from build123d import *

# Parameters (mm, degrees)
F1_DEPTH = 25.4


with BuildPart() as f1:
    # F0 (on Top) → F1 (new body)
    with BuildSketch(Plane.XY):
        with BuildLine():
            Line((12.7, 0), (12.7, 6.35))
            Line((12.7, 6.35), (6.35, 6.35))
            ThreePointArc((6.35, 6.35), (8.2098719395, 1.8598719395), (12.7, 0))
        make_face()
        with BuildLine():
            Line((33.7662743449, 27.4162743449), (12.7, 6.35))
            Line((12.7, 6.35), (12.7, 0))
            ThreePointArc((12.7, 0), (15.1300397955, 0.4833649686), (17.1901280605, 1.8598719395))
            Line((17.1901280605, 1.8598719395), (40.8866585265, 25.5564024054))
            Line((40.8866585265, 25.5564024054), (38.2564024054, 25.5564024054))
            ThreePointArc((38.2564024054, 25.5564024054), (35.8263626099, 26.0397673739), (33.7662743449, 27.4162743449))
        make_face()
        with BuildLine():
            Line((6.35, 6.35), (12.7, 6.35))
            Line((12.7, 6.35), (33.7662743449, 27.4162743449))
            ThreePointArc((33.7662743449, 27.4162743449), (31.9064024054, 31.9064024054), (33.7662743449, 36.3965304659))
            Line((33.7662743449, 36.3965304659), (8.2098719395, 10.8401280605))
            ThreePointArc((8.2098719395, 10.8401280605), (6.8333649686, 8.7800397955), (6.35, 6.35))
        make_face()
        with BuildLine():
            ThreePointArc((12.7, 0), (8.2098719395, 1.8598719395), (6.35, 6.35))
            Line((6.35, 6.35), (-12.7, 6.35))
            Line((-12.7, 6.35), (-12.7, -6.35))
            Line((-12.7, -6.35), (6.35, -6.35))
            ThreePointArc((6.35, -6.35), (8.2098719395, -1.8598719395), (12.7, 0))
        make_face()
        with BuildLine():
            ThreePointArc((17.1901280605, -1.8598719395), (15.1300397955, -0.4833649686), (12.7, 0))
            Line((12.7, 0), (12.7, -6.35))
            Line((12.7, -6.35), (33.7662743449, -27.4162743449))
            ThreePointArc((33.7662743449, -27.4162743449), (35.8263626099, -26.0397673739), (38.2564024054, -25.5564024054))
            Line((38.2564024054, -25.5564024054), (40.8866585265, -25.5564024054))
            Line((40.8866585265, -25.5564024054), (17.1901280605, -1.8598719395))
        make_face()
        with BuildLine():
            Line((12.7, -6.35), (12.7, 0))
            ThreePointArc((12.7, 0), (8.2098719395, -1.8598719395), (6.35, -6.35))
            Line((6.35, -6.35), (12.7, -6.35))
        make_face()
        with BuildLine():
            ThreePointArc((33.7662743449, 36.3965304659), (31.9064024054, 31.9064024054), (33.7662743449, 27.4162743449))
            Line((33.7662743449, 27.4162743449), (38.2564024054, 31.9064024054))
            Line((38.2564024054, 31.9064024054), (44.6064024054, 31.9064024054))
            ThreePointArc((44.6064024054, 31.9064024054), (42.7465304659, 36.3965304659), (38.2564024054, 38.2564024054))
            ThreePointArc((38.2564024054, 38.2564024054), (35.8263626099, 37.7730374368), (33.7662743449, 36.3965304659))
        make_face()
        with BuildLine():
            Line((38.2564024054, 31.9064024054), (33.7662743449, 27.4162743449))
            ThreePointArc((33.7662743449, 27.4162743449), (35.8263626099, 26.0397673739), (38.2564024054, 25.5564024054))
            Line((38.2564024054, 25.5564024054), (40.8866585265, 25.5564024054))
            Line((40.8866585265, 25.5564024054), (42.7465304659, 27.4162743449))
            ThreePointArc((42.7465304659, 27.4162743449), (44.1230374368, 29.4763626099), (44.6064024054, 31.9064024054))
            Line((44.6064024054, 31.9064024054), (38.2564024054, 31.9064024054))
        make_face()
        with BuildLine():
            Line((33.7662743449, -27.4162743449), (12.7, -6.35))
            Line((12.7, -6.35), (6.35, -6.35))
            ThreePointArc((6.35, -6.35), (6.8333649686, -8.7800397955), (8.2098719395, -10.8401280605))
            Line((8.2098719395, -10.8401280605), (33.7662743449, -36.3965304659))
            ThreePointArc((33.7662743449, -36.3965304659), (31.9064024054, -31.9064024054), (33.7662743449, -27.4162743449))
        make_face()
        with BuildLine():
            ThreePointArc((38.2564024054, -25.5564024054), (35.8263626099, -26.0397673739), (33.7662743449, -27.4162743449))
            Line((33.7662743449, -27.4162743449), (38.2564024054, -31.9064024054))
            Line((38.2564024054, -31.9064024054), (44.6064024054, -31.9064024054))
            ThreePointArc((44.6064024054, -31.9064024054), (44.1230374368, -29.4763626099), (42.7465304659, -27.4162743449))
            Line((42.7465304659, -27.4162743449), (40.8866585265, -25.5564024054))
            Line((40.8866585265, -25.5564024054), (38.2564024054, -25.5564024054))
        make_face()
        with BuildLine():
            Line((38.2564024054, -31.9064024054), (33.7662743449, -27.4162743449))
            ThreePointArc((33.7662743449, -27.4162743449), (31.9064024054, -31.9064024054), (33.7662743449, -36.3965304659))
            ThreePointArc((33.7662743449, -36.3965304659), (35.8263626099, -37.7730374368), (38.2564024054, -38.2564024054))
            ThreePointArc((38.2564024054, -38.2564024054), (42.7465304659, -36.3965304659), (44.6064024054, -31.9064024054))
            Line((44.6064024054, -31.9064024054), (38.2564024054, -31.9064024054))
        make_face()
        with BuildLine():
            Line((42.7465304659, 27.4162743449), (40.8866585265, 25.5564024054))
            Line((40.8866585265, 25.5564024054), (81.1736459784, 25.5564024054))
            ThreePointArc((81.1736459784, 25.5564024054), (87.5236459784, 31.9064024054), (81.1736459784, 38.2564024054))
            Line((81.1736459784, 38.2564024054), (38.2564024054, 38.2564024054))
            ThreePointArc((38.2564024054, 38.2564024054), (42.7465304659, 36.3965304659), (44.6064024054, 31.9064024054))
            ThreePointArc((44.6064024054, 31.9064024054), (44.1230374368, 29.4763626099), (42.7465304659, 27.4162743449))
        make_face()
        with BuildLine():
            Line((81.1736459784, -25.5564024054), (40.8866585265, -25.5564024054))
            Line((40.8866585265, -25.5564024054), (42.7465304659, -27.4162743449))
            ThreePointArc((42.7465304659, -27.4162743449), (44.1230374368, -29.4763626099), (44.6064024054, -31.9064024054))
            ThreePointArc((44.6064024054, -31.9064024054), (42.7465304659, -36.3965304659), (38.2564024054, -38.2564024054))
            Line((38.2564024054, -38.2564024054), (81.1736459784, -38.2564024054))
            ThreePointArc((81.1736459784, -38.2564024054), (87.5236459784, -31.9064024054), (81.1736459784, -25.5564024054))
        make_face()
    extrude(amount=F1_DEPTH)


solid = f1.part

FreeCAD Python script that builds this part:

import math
import FreeCAD as App
import Part
import Sketcher
from FreeCAD import Vector
Q = App.Units.Quantity

doc = App.newDocument("Part")
body = doc.addObject("PartDesign::Body", "Body")

sketch1 = body.newObject("Sketcher::SketchObject", "Sketch")
sketch1.AttachmentSupport = (doc.getObject("XY_Plane"), [""])
sketch1.MapMode = "FlatFace"
sketch1.addGeometry(Part.ArcOfCircle(Part.Circle(Vector(12.7, 6.3, 0), Vector(0, 0, 1), 6.3), math.radians(-90), math.radians(-45)), False)
sketch1.addGeometry(Part.LineSegment(Vector(17.2, 1.9, 0), Vector(40.9, 25.6, 0)), False)
sketch1.addGeometry(Part.LineSegment(Vector(40.9, 25.6, 0), Vector(81.2, 25.6, 0)), False)
sketch1.addGeometry(Part.ArcOfCircle(Part.Circle(Vector(81.2, 31.9, 0), Vector(0, 0, 1), 6.3), math.radians(-90), math.radians(90)), False)
sketch1.addGeometry(Part.LineSegment(Vector(81.2, 38.3, 0), Vector(38.3, 38.3, 0)), False)
sketch1.addGeometry(Part.ArcOfCircle(Part.Circle(Vector(38.3, 31.9, 0), Vector(0, 0, 1), 6.3), math.radians(90), math.radians(135)), False)
sketch1.addGeometry(Part.LineSegment(Vector(33.8, 36.4, 0), Vector(8.2, 10.8, 0)), False)
sketch1.addGeometry(Part.ArcOfCircle(Part.Circle(Vector(12.7, 6.3, 0), Vector(0, 0, 1), 6.3), math.radians(135), math.radians(180)), False)
sketch1.addGeometry(Part.LineSegment(Vector(6.3, 6.3, 0), Vector(-12.7, 6.3, 0)), False)
sketch1.addGeometry(Part.LineSegment(Vector(-12.7, 6.3, 0), Vector(-12.7, -6.3, 0)), False)
sketch1.addGeometry(Part.LineSegment(Vector(-12.7, -6.3, 0), Vector(6.3, -6.3, 0)), False)
sketch1.addGeometry(Part.ArcOfCircle(Part.Circle(Vector(12.7, -6.3, 0), Vector(0, 0, 1), 6.3), math.radians(180), math.radians(225)), False)
sketch1.addGeometry(Part.LineSegment(Vector(8.2, -10.8, 0), Vector(33.8, -36.4, 0)), False)
sketch1.addGeometry(Part.ArcOfCircle(Part.Circle(Vector(38.3, -31.9, 0), Vector(0, 0, 1), 6.3), math.radians(-135), math.radians(-90)), False)
sketch1.addGeometry(Part.LineSegment(Vector(38.3, -38.3, 0), Vector(81.2, -38.3, 0)), False)
sketch1.addGeometry(Part.ArcOfCircle(Part.Circle(Vector(81.2, -31.9, 0), Vector(0, 0, 1), 6.3), math.radians(-90), math.radians(90)), False)
sketch1.addGeometry(Part.LineSegment(Vector(81.2, -25.6, 0), Vector(40.9, -25.6, 0)), False)
sketch1.addGeometry(Part.LineSegment(Vector(40.9, -25.6, 0), Vector(17.2, -1.9, 0)), False)
sketch1.addGeometry(Part.ArcOfCircle(Part.Circle(Vector(12.7, -6.3, 0), Vector(0, 0, 1), 6.3), math.radians(45), math.radians(90)), False)
sketch1.addConstraint(Sketcher.Constraint("Tangent", 0, 2, 1, 1))
sketch1.addConstraint(Sketcher.Constraint("Coincident", 1, 2, 2, 1))
sketch1.addConstraint(Sketcher.Constraint("Tangent", 2, 2, 3, 1))
sketch1.addConstraint(Sketcher.Constraint("Tangent", 3, 2, 4, 1))
sketch1.addConstraint(Sketcher.Constraint("Tangent", 4, 2, 5, 1))
sketch1.addConstraint(Sketcher.Constraint("Tangent", 5, 2, 6, 1))
sketch1.addConstraint(Sketcher.Constraint("Tangent", 6, 2, 7, 1))
sketch1.addConstraint(Sketcher.Constraint("Coincident", 7, 2, 8, 1))
sketch1.addConstraint(Sketcher.Constraint("Coincident", 8, 2, 9, 1))
sketch1.addConstraint(Sketcher.Constraint("Coincident", 9, 2, 10, 1))
sketch1.addConstraint(Sketcher.Constraint("Coincident", 10, 2, 11, 1))
sketch1.addConstraint(Sketcher.Constraint("Tangent", 11, 2, 12, 1))
sketch1.addConstraint(Sketcher.Constraint("Tangent", 12, 2, 13, 1))
sketch1.addConstraint(Sketcher.Constraint("Tangent", 13, 2, 14, 1))
sketch1.addConstraint(Sketcher.Constraint("Tangent", 14, 2, 15, 1))
sketch1.addConstraint(Sketcher.Constraint("Tangent", 15, 2, 16, 1))
sketch1.addConstraint(Sketcher.Constraint("Coincident", 16, 2, 17, 1))
sketch1.addConstraint(Sketcher.Constraint("Tangent", 17, 2, 18, 1))
sketch1.addConstraint(Sketcher.Constraint("Tangent", 18, 2, 0, 1))
sketch1.addConstraint(Sketcher.Constraint("Horizontal", 2))
sketch1.addConstraint(Sketcher.Constraint("Horizontal", 4))
sketch1.addConstraint(Sketcher.Constraint("Horizontal", 8))
sketch1.addConstraint(Sketcher.Constraint("Vertical", 9))
sketch1.addConstraint(Sketcher.Constraint("Horizontal", 10))
sketch1.addConstraint(Sketcher.Constraint("Horizontal", 14))
sketch1.addConstraint(Sketcher.Constraint("Horizontal", 16))
sketch1.addConstraint(Sketcher.Constraint("Coincident", 7, 3, 0, 3))
sketch1.addConstraint(Sketcher.Constraint("Coincident", 18, 3, 11, 3))
sketch1.addConstraint(Sketcher.Constraint("Equal", 0, 3))
sketch1.addConstraint(Sketcher.Constraint("Equal", 3, 5))
sketch1.addConstraint(Sketcher.Constraint("Equal", 5, 7))
sketch1.addConstraint(Sketcher.Constraint("Equal", 7, 11))
sketch1.addConstraint(Sketcher.Constraint("Equal", 11, 13))
sketch1.addConstraint(Sketcher.Constraint("Equal", 13, 15))
sketch1.addConstraint(Sketcher.Constraint("Equal", 15, 18))
sketch1.addConstraint(Sketcher.Constraint("Symmetric", 0, 3, 11, 3, -1))
sketch1.addConstraint(Sketcher.Constraint("Symmetric", 5, 3, 13, 3, -1))
sketch1.addConstraint(Sketcher.Constraint("Parallel", 1, 6))
sketch1.addConstraint(Sketcher.Constraint("Perpendicular", 6, 12))
sketch1.addConstraint(Sketcher.Constraint("Parallel", 12, 17))
sketch1.addConstraint(Sketcher.Constraint("Horizontal", 0, 3, 7, 2))
sketch1.addConstraint(Sketcher.Constraint("Horizontal", 18, 3, 9, 2))
sketch1.addConstraint(Sketcher.Constraint("Vertical", 3, 3, 15, 3))
sketch1.addConstraint(Sketcher.Constraint("Radius", 0, Q("0.25 in")))
sketch1.addConstraint(Sketcher.Constraint("DistanceX", 8, 2, 0, 3, Q("1 in")))
sketch1.addConstraint(Sketcher.Constraint("DistanceX", -1, 1, 0, 3, Q("0.5 in")))
sketch1.addConstraint(Sketcher.Constraint("Distance", 6, Q("36.142211 mm")))
sketch1.addConstraint(Sketcher.Constraint("DistanceX", 2, 1, 2, 2, Q("40.286987 mm")))
pad1 = body.newObject("PartDesign::Pad", "Pad")
pad1.Profile = sketch1
pad1.Length = Q("1 in")

doc.recompute()
